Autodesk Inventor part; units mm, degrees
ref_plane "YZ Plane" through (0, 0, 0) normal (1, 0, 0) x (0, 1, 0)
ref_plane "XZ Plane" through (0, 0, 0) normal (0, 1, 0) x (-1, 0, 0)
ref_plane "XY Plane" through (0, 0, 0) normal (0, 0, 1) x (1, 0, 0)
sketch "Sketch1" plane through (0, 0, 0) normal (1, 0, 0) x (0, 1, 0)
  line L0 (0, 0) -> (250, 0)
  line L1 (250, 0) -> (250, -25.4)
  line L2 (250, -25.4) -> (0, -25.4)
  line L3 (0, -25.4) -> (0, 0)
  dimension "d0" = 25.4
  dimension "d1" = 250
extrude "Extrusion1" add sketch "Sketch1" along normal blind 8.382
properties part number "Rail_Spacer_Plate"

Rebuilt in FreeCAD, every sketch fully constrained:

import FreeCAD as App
import Part
import Sketcher

V = App.Vector
Q = App.Units.Quantity


def add_polygon(sketch, points):
    """Adds a closed chain of lines whose ends are joined by coincident constraints."""
    first, n = sketch.GeometryCount, len(points)
    for a, b in zip(points, points[1:] + points[:1]):
        sketch.addGeometry(Part.LineSegment(App.Vector(*a, 0), App.Vector(*b, 0)), False)
    for i in range(n):
        sketch.addConstraint(Sketcher.Constraint("Coincident", first + i, 2, first + (i + 1) % n, 1))

doc = App.newDocument("Part")
body = doc.addObject("PartDesign::Body", "Body")

# Sketch on YZ plane
sketch1 = body.newObject("Sketcher::SketchObject", "Sketch")
sketch1.AttachmentSupport = (doc.getObject("YZ_Plane"), [""])
sketch1.MapMode = "FlatFace"
add_polygon(sketch1, [(250, 0), (0, 0), (0, -25.4), (250, -25.4)])  # lines 0-3
sketch1.addConstraint([
    Sketcher.Constraint("Horizontal", 0),
    Sketcher.Constraint("Vertical", 1),
    Sketcher.Constraint("Horizontal", 2),
    Sketcher.Constraint("Vertical", 3),
    Sketcher.Constraint("Coincident", 0, 2, -1, 1),
    Sketcher.Constraint("DistanceY", 1, 2, 1, 1, Q("1 in")),
    Sketcher.Constraint("DistanceX", 0, 2, 0, 1, Q("250 mm")),
])
pad1 = body.newObject("PartDesign::Pad", "Pad")
pad1.Profile = sketch1
pad1.Length = Q("0.33 in")

doc.recompute()
